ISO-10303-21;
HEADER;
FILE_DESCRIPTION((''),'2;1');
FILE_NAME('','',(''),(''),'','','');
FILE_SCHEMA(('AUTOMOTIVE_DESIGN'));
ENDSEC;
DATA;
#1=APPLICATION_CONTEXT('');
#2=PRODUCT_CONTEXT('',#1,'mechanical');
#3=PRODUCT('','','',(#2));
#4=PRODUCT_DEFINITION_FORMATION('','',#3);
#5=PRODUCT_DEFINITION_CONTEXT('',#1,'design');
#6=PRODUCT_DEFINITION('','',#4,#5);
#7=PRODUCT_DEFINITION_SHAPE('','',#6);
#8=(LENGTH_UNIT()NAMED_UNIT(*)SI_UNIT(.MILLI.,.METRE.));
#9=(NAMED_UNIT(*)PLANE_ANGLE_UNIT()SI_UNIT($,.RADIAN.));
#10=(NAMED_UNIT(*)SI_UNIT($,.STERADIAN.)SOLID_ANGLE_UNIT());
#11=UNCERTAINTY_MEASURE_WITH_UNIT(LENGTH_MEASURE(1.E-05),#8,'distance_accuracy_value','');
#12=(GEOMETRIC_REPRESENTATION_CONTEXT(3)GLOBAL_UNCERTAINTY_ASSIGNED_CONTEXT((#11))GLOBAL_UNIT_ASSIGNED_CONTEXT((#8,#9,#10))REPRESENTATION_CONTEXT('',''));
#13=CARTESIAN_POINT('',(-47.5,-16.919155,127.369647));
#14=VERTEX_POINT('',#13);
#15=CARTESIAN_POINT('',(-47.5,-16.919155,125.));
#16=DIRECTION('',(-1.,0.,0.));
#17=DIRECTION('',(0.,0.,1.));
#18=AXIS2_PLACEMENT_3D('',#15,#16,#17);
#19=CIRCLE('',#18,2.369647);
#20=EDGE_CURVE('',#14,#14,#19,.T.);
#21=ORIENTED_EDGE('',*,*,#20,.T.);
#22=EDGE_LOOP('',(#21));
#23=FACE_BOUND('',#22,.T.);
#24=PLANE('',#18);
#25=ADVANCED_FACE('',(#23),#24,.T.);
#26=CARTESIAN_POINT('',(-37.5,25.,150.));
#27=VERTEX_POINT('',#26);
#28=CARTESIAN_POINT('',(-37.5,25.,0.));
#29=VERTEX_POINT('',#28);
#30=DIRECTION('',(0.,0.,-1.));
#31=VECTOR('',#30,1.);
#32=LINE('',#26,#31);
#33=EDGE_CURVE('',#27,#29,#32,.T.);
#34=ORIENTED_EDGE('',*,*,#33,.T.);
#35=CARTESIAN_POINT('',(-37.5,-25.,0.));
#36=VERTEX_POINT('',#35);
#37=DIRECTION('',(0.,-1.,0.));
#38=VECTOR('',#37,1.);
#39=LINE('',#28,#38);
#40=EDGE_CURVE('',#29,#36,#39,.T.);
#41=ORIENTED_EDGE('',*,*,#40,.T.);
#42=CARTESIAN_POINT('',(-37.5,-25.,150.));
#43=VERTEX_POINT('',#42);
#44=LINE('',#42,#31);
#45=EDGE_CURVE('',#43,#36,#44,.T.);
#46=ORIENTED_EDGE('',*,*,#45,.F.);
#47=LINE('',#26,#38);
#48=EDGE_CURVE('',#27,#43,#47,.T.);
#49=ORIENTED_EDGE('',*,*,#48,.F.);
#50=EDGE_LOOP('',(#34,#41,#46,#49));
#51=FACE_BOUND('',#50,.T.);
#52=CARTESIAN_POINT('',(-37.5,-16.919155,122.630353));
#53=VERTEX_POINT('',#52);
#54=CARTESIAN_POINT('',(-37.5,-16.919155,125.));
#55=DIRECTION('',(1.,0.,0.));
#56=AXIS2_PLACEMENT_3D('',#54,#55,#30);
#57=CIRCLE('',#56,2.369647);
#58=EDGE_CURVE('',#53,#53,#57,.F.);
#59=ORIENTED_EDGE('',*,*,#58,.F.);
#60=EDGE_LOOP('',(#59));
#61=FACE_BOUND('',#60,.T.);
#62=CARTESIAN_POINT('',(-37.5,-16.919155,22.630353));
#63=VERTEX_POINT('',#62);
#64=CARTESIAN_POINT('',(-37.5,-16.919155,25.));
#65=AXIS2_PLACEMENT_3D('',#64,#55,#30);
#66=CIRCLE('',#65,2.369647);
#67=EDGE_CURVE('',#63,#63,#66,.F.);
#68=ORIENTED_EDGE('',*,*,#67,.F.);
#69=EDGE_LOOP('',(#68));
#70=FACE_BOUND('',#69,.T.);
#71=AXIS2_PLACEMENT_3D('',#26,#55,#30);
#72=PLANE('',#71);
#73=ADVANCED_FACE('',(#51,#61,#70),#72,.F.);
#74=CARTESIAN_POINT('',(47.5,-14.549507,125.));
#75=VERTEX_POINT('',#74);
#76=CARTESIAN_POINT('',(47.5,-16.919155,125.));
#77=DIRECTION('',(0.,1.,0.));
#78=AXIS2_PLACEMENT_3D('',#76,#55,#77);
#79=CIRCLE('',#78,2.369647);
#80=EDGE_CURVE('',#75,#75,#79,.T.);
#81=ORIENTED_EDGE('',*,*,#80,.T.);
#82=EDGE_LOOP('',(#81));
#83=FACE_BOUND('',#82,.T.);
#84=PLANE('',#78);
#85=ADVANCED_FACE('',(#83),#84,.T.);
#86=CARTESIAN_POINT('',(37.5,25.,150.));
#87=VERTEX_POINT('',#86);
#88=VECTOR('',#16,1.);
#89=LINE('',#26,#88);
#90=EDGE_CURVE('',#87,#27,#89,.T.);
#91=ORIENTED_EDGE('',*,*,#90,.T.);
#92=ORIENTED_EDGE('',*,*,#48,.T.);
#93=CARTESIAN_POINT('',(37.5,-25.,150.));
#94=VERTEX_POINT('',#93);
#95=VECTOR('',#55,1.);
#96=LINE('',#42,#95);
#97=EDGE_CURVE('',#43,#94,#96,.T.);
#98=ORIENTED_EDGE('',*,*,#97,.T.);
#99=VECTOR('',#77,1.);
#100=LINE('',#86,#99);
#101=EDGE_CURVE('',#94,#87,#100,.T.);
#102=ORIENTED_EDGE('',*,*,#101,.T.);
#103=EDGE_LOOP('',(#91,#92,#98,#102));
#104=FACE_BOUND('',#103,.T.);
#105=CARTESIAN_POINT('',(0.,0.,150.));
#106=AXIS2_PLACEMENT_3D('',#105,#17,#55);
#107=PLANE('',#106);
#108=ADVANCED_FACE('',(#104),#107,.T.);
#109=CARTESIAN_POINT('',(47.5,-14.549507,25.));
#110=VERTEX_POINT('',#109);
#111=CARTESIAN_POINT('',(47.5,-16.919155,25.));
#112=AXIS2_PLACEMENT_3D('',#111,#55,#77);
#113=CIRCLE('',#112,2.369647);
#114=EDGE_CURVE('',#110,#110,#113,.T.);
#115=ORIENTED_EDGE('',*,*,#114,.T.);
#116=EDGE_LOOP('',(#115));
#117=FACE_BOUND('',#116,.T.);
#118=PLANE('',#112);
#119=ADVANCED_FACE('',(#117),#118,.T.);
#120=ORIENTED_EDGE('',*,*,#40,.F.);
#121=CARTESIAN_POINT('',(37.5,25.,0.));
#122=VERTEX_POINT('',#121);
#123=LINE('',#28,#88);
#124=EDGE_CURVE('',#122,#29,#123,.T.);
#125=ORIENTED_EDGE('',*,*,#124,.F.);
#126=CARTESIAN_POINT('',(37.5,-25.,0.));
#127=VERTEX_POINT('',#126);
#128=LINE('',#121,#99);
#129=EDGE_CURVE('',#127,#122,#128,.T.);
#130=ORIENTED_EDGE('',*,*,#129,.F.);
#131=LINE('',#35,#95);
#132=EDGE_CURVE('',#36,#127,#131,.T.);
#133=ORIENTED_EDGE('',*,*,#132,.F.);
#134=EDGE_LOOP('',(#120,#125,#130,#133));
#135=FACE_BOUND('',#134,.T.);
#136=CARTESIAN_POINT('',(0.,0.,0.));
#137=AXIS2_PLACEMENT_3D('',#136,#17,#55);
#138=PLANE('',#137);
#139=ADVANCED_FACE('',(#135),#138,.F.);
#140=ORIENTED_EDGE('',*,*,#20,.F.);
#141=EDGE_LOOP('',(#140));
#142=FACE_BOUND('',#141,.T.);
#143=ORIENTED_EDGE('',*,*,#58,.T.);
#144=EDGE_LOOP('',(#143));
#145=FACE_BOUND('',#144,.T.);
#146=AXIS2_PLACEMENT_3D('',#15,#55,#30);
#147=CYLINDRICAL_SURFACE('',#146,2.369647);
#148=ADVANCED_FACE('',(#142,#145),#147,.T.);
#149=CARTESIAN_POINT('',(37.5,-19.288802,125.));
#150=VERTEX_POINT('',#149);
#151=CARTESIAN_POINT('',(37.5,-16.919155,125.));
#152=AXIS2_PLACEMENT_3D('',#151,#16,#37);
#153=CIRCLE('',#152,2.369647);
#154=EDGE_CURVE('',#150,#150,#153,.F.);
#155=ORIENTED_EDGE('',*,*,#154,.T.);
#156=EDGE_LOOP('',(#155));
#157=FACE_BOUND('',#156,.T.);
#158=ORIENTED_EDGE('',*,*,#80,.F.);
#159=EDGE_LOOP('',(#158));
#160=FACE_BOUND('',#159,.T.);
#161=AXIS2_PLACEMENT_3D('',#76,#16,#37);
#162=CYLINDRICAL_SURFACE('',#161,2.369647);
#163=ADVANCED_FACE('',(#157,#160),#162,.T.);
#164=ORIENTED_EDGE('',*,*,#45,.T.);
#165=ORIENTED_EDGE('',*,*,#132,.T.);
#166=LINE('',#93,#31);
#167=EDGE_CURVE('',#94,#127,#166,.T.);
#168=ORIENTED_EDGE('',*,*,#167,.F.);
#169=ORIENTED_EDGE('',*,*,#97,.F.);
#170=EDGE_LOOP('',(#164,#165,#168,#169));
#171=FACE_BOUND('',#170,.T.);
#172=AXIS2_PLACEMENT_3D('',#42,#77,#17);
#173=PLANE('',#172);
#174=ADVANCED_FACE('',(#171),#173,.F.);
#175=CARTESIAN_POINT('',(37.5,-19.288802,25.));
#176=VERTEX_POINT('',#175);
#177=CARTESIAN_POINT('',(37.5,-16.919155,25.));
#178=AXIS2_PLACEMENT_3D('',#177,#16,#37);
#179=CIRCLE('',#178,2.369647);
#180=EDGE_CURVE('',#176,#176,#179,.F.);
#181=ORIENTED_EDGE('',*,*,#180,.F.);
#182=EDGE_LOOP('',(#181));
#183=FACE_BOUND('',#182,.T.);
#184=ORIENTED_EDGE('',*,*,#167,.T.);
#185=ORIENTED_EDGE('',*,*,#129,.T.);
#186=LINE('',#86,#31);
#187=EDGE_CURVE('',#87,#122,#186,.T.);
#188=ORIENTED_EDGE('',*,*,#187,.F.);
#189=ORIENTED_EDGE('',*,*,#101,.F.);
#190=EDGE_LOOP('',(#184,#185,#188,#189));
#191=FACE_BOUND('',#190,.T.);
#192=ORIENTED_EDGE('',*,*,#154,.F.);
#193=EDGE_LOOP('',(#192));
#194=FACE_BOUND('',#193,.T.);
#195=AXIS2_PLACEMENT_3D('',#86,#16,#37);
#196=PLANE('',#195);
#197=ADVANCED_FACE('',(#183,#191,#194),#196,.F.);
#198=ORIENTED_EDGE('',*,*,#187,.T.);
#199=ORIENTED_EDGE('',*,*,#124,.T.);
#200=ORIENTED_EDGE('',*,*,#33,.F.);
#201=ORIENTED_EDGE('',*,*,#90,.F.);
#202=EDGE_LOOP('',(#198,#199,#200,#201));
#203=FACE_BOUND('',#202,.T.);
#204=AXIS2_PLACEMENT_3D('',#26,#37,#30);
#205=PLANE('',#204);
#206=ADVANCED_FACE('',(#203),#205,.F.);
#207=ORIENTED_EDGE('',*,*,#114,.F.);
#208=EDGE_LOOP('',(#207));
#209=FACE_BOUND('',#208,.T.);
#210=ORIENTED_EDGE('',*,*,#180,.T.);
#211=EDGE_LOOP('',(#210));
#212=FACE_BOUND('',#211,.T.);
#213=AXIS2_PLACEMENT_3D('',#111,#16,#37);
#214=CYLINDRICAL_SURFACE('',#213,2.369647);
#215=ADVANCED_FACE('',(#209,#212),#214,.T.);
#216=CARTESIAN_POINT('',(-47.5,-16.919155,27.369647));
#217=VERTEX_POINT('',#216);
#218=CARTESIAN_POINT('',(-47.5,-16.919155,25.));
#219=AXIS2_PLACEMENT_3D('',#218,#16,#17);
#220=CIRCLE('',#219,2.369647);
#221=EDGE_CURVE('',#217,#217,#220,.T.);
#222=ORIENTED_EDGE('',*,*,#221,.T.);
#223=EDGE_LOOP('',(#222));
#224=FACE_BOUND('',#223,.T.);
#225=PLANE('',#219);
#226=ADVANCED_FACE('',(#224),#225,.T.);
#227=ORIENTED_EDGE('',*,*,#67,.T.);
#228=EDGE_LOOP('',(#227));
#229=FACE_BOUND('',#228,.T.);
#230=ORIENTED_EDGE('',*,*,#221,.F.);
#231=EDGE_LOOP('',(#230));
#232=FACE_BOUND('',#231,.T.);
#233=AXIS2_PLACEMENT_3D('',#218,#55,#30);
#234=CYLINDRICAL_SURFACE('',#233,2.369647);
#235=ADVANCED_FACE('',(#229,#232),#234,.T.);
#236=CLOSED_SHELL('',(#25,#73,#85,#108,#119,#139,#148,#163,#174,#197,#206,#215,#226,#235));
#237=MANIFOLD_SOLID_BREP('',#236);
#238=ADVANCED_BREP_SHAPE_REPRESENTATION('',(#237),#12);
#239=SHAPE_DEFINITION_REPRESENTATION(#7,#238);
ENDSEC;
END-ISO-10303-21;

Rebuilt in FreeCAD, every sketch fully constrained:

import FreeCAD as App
import Part
import Sketcher

doc = App.newDocument("Part")
body = doc.addObject("PartDesign::Body", "Body")

sketch1 = doc.addObject("Sketcher::SketchObject", "Sketch")
body.addObject(sketch1)
sketch1.AttachmentSupport = (doc.XY_Plane, [""])
sketch1.MapMode = "FlatFace"
sketch1.addGeometry([
    Part.LineSegment(App.Vector(-38, 25, 0), App.Vector(-38, -25, 0)),
    Part.LineSegment(App.Vector(-38, -25, 0), App.Vector(38, -25, 0)),
    Part.LineSegment(App.Vector(38, -25, 0), App.Vector(38, 25, 0)),
    Part.LineSegment(App.Vector(38, 25, 0), App.Vector(-38, 25, 0)),
], False)
sketch1.addConstraint([
    Sketcher.Constraint("Coincident", 0, 2, 1, 1),
    Sketcher.Constraint("Coincident", 1, 2, 2, 1),
    Sketcher.Constraint("Coincident", 2, 2, 3, 1),
    Sketcher.Constraint("Coincident", 3, 2, 0, 1),
    Sketcher.Constraint("Vertical", 0),
    Sketcher.Constraint("Horizontal", 1),
    Sketcher.Constraint("Vertical", 2),
    Sketcher.Constraint("Horizontal", 3),
    Sketcher.Constraint("Symmetric", 0, 2, 2, 2, -1, 1),
    Sketcher.Constraint("DistanceX", 1, 1, 1, 2, 75.0),
    Sketcher.Constraint("DistanceY", 0, 2, 0, 1, 50.0),
])
pad1 = doc.addObject("PartDesign::Pad", "Pad")
body.addObject(pad1)
pad1.Profile = sketch1
pad1.Length = 150

sketch2 = doc.addObject("Sketcher::SketchObject", "Sketch001")
body.addObject(sketch2)
sketch2.AttachmentSupport = (doc.YZ_Plane, [""])
sketch2.MapMode = "FlatFace"
sketch2.AttachmentOffset = App.Placement(App.Vector(0, 0, 37.5), App.Rotation())
sketch2.addGeometry([
    Part.Circle(App.Vector(-16.9, 125, 0), App.Vector(0, 0, 1), 2.4),
    Part.Circle(App.Vector(-16.9, 25, 0), App.Vector(0, 0, 1), 2.4),
], False)
sketch2.addConstraint([
    Sketcher.Constraint("Equal", 0, 1),
    Sketcher.Constraint("Vertical", 0, 3, 1, 3),
    Sketcher.Constraint("DistanceY", -1, 1, 0, 3, 125.0),
    Sketcher.Constraint("DistanceY", -1, 1, 1, 3, 25.0),
    Sketcher.Constraint("Diameter", 0, 4.739294),
    Sketcher.Constraint("DistanceX", 0, 3, -1, 1, 16.919155),
])
pad2 = doc.addObject("PartDesign::Pad", "Pad001")
body.addObject(pad2)
pad2.Profile = sketch2
pad2.Length = 10

sketch3 = doc.addObject("Sketcher::SketchObject", "Sketch002")
body.addObject(sketch3)
sketch3.AttachmentSupport = (doc.YZ_Plane, [""])
sketch3.MapMode = "FlatFace"
sketch3.AttachmentOffset = App.Placement(App.Vector(0, 0, -47.5), App.Rotation())
sketch3.addGeometry([
    Part.Circle(App.Vector(-16.9, 25, 0), App.Vector(0, 0, 1), 2.4),
    Part.Circle(App.Vector(-16.9, 125, 0), App.Vector(0, 0, 1), 2.4),
], False)
sketch3.addConstraint([
    Sketcher.Constraint("Equal", 0, 1),
    Sketcher.Constraint("Vertical", 0, 3, 1, 3),
    Sketcher.Constraint("DistanceY", -1, 1, 0, 3, 25.0),
    Sketcher.Constraint("DistanceY", -1, 1, 1, 3, 125.0),
    Sketcher.Constraint("Diameter", 0, 4.739294),
    Sketcher.Constraint("DistanceX", 0, 3, -1, 1, 16.919155),
])
pad3 = doc.addObject("PartDesign::Pad", "Pad002")
body.addObject(pad3)
pad3.Profile = sketch3
pad3.Length = 10

doc.recompute()
